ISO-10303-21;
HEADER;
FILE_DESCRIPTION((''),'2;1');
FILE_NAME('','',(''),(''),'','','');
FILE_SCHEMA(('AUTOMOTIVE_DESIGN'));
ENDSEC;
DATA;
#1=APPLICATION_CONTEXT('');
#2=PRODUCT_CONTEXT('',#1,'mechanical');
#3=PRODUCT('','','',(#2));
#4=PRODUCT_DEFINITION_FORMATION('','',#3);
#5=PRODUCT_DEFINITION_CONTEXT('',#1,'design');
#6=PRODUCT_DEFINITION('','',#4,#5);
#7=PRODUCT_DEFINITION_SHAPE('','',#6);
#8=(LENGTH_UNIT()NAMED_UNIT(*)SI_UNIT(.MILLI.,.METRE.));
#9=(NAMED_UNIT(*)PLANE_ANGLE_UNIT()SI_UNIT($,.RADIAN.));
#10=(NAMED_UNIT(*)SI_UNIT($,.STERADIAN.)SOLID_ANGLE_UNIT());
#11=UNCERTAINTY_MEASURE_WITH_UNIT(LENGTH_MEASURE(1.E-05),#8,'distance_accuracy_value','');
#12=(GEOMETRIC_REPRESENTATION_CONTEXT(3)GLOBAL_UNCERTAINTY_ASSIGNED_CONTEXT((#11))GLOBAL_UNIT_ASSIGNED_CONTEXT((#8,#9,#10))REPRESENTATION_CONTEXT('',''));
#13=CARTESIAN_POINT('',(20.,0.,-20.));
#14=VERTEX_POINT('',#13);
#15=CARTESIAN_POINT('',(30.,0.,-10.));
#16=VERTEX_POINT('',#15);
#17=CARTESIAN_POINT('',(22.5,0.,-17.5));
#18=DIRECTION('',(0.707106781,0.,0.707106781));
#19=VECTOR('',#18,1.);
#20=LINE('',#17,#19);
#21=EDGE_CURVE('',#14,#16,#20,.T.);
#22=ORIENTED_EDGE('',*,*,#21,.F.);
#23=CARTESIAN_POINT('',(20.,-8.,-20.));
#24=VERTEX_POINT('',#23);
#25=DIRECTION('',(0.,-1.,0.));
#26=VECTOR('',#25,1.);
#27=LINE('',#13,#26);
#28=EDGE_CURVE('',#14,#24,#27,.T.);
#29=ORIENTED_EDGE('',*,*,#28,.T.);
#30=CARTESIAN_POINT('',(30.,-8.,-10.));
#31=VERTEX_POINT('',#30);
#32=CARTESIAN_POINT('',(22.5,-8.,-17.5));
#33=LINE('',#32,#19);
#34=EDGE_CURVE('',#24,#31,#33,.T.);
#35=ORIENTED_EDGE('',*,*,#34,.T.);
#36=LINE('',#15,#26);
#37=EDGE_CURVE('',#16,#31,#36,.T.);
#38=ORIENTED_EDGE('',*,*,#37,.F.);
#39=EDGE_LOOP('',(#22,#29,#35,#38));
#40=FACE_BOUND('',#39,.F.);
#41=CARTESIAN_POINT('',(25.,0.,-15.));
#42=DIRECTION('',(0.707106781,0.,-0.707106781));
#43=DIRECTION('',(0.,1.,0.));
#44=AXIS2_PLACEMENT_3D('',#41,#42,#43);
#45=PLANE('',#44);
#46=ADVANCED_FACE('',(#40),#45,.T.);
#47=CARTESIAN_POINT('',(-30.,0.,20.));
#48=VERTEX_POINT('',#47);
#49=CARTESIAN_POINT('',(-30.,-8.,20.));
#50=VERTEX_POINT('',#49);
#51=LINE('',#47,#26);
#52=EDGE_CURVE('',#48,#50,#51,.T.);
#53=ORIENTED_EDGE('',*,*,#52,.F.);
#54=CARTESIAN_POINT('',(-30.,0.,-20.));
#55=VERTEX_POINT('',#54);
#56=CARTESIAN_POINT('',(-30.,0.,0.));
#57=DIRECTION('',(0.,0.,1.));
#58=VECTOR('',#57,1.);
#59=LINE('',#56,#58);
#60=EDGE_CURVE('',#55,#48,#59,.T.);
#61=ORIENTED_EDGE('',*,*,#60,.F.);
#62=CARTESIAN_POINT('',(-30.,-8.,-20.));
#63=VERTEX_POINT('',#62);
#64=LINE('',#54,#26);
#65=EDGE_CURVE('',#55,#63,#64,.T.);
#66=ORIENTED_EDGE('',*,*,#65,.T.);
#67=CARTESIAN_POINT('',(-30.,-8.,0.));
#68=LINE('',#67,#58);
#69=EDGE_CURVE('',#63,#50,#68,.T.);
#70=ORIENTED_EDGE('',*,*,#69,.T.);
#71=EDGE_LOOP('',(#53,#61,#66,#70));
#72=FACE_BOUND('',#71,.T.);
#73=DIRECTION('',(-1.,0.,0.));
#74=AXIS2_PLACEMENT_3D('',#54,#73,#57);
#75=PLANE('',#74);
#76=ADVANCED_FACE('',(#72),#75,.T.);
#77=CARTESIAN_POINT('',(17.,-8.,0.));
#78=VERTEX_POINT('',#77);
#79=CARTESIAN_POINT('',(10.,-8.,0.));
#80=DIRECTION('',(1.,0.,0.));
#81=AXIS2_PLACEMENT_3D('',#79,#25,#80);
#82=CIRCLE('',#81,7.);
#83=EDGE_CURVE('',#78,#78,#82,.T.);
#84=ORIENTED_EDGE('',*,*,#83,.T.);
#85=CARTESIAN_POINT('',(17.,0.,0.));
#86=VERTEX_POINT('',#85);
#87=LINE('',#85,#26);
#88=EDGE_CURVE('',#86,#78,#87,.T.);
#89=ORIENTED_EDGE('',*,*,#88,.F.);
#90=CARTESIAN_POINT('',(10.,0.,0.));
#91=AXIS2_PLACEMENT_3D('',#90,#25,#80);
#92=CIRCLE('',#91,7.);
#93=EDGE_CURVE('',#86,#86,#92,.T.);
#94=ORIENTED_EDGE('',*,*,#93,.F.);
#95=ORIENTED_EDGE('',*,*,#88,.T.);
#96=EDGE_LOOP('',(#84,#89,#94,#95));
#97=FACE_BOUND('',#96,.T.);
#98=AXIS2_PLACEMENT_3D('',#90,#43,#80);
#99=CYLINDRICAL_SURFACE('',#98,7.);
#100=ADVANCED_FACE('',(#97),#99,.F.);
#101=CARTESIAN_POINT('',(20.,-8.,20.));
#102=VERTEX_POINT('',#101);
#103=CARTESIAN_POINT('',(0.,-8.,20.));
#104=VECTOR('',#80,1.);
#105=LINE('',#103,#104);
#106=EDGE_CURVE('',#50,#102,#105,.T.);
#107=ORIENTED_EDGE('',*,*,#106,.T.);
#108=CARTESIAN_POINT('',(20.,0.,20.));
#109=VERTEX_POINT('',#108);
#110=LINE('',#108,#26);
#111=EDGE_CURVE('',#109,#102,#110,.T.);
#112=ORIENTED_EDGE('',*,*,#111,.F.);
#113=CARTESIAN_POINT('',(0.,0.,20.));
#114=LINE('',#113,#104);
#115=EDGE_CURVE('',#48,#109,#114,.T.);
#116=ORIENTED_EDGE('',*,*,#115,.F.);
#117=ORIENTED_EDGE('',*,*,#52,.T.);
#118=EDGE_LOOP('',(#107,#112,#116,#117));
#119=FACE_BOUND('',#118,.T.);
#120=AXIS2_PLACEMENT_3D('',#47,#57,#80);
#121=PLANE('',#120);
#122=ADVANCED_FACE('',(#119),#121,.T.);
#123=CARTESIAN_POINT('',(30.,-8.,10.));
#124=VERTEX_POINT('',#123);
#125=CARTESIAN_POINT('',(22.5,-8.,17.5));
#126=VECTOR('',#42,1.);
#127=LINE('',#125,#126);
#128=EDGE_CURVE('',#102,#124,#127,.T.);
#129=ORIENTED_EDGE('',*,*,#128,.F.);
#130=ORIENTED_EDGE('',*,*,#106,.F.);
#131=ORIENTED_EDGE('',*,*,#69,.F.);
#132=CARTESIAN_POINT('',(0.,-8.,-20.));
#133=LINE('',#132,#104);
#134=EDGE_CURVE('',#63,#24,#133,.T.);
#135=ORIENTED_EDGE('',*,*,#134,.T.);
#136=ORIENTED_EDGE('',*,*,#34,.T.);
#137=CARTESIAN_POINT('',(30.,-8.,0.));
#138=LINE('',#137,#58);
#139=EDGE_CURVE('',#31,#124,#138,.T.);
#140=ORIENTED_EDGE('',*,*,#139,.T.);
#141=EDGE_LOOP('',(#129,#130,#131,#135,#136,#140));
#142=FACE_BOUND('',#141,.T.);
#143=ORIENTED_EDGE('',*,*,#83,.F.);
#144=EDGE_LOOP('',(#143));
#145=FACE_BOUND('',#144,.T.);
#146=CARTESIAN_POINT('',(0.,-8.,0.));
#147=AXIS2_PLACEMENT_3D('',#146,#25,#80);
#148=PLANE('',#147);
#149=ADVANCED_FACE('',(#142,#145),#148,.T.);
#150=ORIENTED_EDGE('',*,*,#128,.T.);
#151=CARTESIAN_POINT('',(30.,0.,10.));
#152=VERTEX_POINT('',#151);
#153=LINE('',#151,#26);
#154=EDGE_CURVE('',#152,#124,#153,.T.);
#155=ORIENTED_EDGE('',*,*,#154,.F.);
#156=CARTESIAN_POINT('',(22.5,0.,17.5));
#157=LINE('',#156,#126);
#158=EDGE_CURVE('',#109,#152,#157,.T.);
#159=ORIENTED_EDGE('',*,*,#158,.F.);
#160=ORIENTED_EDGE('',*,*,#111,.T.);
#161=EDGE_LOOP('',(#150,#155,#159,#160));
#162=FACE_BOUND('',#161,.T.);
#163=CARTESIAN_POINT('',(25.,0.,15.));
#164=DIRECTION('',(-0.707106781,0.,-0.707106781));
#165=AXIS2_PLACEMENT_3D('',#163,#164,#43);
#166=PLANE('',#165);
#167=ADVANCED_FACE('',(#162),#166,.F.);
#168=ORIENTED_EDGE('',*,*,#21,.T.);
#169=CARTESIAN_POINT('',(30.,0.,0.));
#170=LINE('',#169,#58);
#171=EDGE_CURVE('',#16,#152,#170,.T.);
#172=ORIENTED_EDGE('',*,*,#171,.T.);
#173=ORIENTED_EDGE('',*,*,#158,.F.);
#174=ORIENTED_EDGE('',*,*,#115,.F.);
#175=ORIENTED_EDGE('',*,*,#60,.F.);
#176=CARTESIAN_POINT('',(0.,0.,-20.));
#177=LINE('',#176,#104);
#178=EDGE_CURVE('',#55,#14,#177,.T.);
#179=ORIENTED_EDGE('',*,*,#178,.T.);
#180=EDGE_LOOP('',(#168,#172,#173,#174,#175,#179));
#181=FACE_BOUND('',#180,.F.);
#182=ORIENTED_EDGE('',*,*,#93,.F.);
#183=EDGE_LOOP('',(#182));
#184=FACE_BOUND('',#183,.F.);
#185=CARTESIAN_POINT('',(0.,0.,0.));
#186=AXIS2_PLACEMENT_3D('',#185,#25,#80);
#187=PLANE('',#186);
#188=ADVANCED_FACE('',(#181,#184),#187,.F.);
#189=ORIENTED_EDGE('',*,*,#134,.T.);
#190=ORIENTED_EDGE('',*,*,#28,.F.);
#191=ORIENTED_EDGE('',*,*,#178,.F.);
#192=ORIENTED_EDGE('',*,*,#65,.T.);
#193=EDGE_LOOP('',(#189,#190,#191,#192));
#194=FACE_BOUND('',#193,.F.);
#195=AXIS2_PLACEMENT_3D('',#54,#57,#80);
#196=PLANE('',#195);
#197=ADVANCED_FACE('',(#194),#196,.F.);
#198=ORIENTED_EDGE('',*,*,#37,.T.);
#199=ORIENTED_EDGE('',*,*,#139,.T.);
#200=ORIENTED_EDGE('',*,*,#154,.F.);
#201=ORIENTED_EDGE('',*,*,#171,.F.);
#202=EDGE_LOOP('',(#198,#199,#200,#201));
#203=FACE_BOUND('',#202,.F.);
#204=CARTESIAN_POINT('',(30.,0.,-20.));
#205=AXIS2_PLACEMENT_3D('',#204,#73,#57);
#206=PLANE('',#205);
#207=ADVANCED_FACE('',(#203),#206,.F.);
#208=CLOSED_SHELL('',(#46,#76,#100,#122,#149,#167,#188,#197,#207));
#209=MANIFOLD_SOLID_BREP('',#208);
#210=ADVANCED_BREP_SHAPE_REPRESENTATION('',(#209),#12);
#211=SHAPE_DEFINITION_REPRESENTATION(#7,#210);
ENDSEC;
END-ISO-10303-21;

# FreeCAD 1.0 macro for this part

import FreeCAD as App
import Part
import Sketcher

V = App.Vector


def edges_at(feature, points):
    """Names of the edges that pass closest to the given points."""
    edges = feature.Shape.Edges
    near = lambda p: min(range(len(edges)), key=lambda i: edges[i].distToShape(Part.Vertex(*p))[0])
    return sorted({f"Edge{near(p) + 1}" for p in points})


def add_polygon(sketch, points):
    """Adds a closed chain of lines whose ends are joined by coincident constraints."""
    first, n = sketch.GeometryCount, len(points)
    for a, b in zip(points, points[1:] + points[:1]):
        sketch.addGeometry(Part.LineSegment(App.Vector(*a, 0), App.Vector(*b, 0)), False)
    for i in range(n):
        sketch.addConstraint(Sketcher.Constraint("Coincident", first + i, 2, first + (i + 1) % n, 1))

doc = App.newDocument("Part")
body = doc.addObject("PartDesign::Body", "Body")

# Sketch on XZ plane
sketch1 = body.newObject("Sketcher::SketchObject", "Sketch")
sketch1.AttachmentSupport = (doc.getObject("XZ_Plane"), [""])
sketch1.MapMode = "FlatFace"
add_polygon(sketch1, [(-30, 20), (-30, -20), (30, -20), (30, 20)])  # lines 0-3
sketch1.addGeometry(Part.Circle(V(10, 0, 0), V(0, 0, 1), 7), False)  # 4
sketch1.addConstraint([
    Sketcher.Constraint("Vertical", 0),
    Sketcher.Constraint("Horizontal", 1),
    Sketcher.Constraint("Vertical", 2),
    Sketcher.Constraint("Horizontal", 3),
    Sketcher.Constraint("Symmetric", 0, 2, 2, 2, -1, 1),
    Sketcher.Constraint("PointOnObject", 4, 3, -1),
    Sketcher.Constraint("Diameter", 4, 14.0),
    Sketcher.Constraint("DistanceX", 1, 1, 1, 2, 60.0),
    Sketcher.Constraint("DistanceY", 0, 2, 0, 1, 40.0),
    Sketcher.Constraint("DistanceX", -1, 1, 4, 3, 10.0),
])
pad1 = body.newObject("PartDesign::Pad", "Pad")
pad1.Profile = sketch1
pad1.Length = 8
doc.recompute()

chamfer = body.newObject("PartDesign::Chamfer", "Chamfer")
chamfer.Base = (pad1, edges_at(pad1, [(30, -4, -20), (30, -4, 20)]))
chamfer.Size = 10

doc.recompute()
